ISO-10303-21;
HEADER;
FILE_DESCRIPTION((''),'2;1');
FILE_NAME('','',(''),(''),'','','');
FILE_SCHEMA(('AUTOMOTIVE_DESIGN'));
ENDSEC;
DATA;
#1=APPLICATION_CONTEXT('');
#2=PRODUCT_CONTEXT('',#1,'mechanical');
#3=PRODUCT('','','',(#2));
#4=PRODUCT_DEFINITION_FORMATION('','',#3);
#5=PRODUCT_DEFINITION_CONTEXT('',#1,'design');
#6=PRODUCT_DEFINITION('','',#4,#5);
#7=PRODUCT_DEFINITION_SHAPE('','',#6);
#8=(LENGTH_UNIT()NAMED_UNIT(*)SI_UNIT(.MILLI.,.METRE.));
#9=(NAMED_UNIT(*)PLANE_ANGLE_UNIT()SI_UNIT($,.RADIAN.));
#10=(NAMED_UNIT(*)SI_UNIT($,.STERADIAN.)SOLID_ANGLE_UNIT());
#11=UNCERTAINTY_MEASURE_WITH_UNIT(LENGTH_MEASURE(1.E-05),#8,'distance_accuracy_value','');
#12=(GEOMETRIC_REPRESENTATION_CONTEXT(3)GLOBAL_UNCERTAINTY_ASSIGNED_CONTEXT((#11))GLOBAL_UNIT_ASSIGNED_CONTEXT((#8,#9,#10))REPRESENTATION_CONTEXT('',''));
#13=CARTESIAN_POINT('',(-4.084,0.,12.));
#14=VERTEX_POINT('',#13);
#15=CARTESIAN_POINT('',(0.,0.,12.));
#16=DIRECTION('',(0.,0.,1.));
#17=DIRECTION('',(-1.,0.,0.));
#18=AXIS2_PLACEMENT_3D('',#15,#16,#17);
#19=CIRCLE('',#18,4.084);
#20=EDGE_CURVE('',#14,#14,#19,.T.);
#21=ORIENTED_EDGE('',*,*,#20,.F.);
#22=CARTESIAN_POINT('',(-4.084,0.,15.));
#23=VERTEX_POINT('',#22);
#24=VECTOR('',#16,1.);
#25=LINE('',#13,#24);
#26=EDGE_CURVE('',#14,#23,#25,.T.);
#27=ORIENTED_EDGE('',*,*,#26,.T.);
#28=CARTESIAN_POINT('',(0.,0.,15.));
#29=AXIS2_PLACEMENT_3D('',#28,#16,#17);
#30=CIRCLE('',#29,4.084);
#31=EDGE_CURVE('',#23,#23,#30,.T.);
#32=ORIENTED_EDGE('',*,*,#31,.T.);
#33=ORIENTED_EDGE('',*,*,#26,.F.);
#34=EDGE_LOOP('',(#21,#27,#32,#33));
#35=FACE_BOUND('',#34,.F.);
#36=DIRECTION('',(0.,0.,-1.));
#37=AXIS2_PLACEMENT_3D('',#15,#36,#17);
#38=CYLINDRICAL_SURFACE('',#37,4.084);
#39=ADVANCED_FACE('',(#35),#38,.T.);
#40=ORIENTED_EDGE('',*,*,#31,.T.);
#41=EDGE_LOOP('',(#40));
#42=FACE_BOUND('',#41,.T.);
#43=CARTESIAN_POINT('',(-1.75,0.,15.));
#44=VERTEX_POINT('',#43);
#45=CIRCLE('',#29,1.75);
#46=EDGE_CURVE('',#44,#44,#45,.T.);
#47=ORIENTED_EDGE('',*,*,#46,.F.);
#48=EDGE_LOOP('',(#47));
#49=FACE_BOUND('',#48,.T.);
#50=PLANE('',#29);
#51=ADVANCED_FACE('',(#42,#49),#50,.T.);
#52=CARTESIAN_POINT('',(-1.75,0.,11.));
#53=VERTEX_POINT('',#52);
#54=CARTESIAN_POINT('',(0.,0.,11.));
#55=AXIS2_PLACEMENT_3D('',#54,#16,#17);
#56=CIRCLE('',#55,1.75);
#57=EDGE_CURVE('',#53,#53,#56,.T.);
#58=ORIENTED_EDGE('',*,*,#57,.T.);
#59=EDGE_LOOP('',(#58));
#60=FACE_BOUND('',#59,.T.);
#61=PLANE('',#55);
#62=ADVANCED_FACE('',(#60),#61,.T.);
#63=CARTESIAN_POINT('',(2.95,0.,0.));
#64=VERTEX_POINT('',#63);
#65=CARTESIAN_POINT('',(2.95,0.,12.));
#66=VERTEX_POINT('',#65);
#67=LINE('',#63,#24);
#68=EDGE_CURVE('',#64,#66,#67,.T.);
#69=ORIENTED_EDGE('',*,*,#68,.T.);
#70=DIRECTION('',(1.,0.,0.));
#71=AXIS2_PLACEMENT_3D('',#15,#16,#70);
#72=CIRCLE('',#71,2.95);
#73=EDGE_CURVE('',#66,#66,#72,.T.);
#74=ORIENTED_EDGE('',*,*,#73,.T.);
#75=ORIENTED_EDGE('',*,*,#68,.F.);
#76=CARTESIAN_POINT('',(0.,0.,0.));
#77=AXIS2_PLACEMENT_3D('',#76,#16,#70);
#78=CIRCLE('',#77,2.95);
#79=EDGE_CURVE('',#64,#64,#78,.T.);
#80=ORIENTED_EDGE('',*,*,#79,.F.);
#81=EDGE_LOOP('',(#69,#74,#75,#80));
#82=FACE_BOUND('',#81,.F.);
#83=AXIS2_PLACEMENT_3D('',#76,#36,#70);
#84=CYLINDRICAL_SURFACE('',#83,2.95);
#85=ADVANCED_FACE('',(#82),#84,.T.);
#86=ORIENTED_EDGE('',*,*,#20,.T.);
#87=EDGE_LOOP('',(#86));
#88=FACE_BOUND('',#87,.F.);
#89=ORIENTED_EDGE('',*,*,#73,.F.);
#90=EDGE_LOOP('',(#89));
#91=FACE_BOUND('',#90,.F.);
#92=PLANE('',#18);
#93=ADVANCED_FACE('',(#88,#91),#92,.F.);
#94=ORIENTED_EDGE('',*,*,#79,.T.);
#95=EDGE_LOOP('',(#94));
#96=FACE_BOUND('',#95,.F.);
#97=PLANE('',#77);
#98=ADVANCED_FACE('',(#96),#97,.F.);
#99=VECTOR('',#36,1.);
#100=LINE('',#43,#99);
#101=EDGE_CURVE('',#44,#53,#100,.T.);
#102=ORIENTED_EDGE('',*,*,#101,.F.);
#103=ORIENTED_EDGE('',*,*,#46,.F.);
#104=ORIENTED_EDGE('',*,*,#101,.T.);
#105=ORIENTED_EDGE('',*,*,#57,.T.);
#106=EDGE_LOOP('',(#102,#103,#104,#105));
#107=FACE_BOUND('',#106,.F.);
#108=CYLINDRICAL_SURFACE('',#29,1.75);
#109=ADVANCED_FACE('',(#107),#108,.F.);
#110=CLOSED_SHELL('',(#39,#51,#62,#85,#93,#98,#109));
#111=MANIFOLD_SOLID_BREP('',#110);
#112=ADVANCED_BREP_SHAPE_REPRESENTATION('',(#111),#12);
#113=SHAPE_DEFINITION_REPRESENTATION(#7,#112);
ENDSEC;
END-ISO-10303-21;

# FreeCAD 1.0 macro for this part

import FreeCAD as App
import Part
import Sketcher
from FreeCAD import Vector
Q = App.Units.Quantity

doc = App.newDocument("Part")
params = doc.addObject("Spreadsheet::Sheet", "Params")
for row, (alias, value) in enumerate([
    ("sketch1_diameter", "5.9 mm"),
    ("pad1_length", "12 mm"),
    ("pad2_length", "3 mm"),
    ("sketch3_diameter", "3.5 mm"),
    ("pocket1_length", "4 mm"),
], start=1):
    params.set(f"A{row}", alias)
    params.set(f"B{row}", "=" + value)
    params.setAlias(f"B{row}", alias)

body = doc.addObject("PartDesign::Body", "Body")

# Sketch on XY plane
sketch1 = body.newObject("Sketcher::SketchObject", "Sketch")
sketch1.AttachmentSupport = (doc.getObject("XY_Plane"), [""])
sketch1.MapMode = "FlatFace"
sketch1.addGeometry(Part.Circle(Vector(0, 0, 0), Vector(0, 0, 1), 3), False)
sketch1.addConstraint(Sketcher.Constraint("Coincident", 0, 3, -1, 1))
sketch1.addConstraint(Sketcher.Constraint("Diameter", 0, Q("5.9 mm")))
sketch1.setExpression("Constraints[1]", "Params.sketch1_diameter")
pad1 = body.newObject("PartDesign::Pad", "Pad")
pad1.Profile = sketch1
pad1.setExpression("Length", "Params.pad1_length")

# Sketch on XY plane
sketch2 = body.newObject("Sketcher::SketchObject", "Sketch001")
sketch2.AttachmentSupport = (doc.getObject("XY_Plane"), [""])
sketch2.MapMode = "FlatFace"
sketch2.AttachmentOffset = App.Placement(Vector(0, 0, 12), App.Rotation())
sketch2.addGeometry(Part.Circle(Vector(0, 0, 0), Vector(0, 0, 1), 4.1), False)
sketch2.addConstraint(Sketcher.Constraint("Coincident", 0, 3, -1, 1))
sketch2.addConstraint(Sketcher.Constraint("Diameter", 0, Q("8.168 mm")))
pad2 = body.newObject("PartDesign::Pad", "Pad001")
pad2.Profile = sketch2
pad2.setExpression("Length", "Params.pad2_length")

# Sketch on XY plane
sketch3 = body.newObject("Sketcher::SketchObject", "Sketch002")
sketch3.AttachmentSupport = (doc.getObject("XY_Plane"), [""])
sketch3.MapMode = "FlatFace"
sketch3.AttachmentOffset = App.Placement(Vector(0, 0, 15), App.Rotation())
sketch3.addGeometry(Part.Circle(Vector(0, 0, 0), Vector(0, 0, 1), 1.8), False)
sketch3.addConstraint(Sketcher.Constraint("Coincident", 0, 3, -1, 1))
sketch3.addConstraint(Sketcher.Constraint("Diameter", 0, Q("3.5 mm")))
sketch3.setExpression("Constraints[1]", "Params.sketch3_diameter")
pocket1 = body.newObject("PartDesign::Pocket", "Pocket")
pocket1.Profile = sketch3
pocket1.setExpression("Length", "Params.pocket1_length")

doc.recompute()
